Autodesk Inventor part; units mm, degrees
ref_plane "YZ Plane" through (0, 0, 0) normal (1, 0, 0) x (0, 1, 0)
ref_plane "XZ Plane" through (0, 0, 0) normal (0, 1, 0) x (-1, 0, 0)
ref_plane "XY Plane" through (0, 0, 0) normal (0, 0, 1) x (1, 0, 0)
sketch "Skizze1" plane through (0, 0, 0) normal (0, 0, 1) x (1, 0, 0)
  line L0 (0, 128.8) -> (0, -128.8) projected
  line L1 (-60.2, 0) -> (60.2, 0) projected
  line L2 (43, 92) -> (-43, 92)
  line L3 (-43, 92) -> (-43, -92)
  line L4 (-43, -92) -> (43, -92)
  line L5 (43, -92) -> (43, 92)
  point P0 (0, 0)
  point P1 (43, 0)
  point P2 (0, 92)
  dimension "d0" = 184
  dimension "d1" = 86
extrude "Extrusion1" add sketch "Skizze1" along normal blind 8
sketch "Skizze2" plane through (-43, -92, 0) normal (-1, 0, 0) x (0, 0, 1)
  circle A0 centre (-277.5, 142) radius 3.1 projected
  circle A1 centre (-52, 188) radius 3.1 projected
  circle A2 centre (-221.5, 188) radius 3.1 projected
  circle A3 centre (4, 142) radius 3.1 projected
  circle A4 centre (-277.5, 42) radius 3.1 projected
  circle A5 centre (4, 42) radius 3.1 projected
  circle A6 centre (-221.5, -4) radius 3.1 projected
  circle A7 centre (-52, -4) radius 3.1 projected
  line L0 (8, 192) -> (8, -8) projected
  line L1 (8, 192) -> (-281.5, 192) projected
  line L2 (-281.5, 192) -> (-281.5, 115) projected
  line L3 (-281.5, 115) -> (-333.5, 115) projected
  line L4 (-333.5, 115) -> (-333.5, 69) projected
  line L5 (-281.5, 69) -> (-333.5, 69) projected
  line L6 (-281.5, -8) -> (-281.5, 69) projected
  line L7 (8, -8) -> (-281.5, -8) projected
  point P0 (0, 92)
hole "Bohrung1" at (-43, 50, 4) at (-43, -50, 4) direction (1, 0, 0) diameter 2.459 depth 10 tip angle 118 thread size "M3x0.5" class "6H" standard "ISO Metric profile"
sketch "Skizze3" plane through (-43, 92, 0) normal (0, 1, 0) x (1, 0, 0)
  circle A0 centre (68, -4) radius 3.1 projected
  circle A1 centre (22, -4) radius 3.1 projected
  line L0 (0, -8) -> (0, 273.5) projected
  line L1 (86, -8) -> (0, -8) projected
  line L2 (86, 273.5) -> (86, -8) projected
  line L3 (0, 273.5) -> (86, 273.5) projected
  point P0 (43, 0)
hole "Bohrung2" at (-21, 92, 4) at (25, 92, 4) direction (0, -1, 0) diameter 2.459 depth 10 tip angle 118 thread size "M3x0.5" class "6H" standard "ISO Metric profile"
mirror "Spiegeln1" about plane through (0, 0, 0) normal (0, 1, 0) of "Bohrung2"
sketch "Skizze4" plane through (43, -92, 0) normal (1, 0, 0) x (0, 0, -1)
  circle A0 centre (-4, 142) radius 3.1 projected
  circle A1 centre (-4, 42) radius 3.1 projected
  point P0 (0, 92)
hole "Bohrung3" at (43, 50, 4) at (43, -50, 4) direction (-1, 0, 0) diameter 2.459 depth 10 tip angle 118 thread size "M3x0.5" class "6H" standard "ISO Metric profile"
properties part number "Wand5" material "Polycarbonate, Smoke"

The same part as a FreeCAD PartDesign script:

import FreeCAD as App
import Part
import Sketcher

doc = App.newDocument("Part")
params = doc.addObject("Spreadsheet::Sheet", "Params")
for row, (alias, value) in enumerate([
    ("sketch1_width", "86 mm"),
    ("sketch1_height", "184 mm"),
    ("pad1_length", "8 mm"),
    ("hole_diameter", "2.459 mm"),
    ("hole_depth", "10 mm"),
    ("hole2_diameter", "2.459 mm"),
    ("hole2_depth", "10 mm"),
    ("hole3_diameter", "2.459 mm"),
    ("hole3_depth", "10 mm"),
], start=1):
    params.set(f"A{row}", alias)
    params.set(f"B{row}", "=" + value)
    params.setAlias(f"B{row}", alias)

body = doc.addObject("PartDesign::Body", "Body")

sketch1 = body.newObject("Sketcher::SketchObject", "Sketch")
sketch1.AttachmentSupport = (doc.getObject("XY_Plane"), [""])
sketch1.MapMode = "FlatFace"
sketch1.addGeometry([
    Part.LineSegment(App.Vector(43, 92, 0), App.Vector(-43, 92, 0)),
    Part.LineSegment(App.Vector(-43, 92, 0), App.Vector(-43, -92, 0)),
    Part.LineSegment(App.Vector(-43, -92, 0), App.Vector(43, -92, 0)),
    Part.LineSegment(App.Vector(43, -92, 0), App.Vector(43, 92, 0)),
], False)
sketch1.addConstraint([
    Sketcher.Constraint("Coincident", 0, 2, 1, 1),
    Sketcher.Constraint("Coincident", 1, 2, 2, 1),
    Sketcher.Constraint("Coincident", 2, 2, 3, 1),
    Sketcher.Constraint("Coincident", 3, 2, 0, 1),
    Sketcher.Constraint("Horizontal", 0),
    Sketcher.Constraint("Vertical", 1),
    Sketcher.Constraint("Horizontal", 2),
    Sketcher.Constraint("Vertical", 3),
    Sketcher.Constraint("Symmetric", 0, 2, 2, 2, -1, 1),
    Sketcher.Constraint("DistanceX", 0, 2, 0, 1, 86.0),
    Sketcher.Constraint("DistanceY", 1, 2, 1, 1, 184.0),
])
sketch1.setExpression("Constraints[9]", "Params.sketch1_width")
sketch1.setExpression("Constraints[10]", "Params.sketch1_height")
pad1 = body.newObject("PartDesign::Pad", "Pad")
pad1.Profile = sketch1
pad1.setExpression("Length", "Params.pad1_length")

sketch2 = body.newObject("Sketcher::SketchObject", "Sketch001")
sketch2.AttachmentSupport = (doc.getObject("YZ_Plane"), [""])
sketch2.MapMode = "FlatFace"
sketch2.AttachmentOffset = App.Placement(App.Vector(0, 0, -43), App.Rotation())
sketch2.addGeometry([
    Part.Circle(App.Vector(50, 4, 0), App.Vector(0, 0, 1), 1.2),
    Part.Circle(App.Vector(-50, 4, 0), App.Vector(0, 0, 1), 1.2),
], False)
sketch2.addConstraint([
    Sketcher.Constraint("Equal", 0, 1),
    Sketcher.Constraint("Symmetric", 0, 3, 1, 3, -2),
    Sketcher.Constraint("Diameter", 0, 2.459),
    Sketcher.Constraint("DistanceX", -1, 1, 0, 3, 50.0),
    Sketcher.Constraint("DistanceY", -1, 1, 0, 3, 4.0),
])
doc.recompute()
hole = body.newObject("PartDesign::Hole", "Hole")
hole.Profile = sketch2
hole.ThreadType = "None"
hole.setExpression("Diameter", "Params.hole_diameter")
hole.DepthType = "Dimension"
hole.setExpression("Depth", "Params.hole_depth")
hole.DrillPoint = "Angled"
hole.DrillPointAngle = 118
hole.Reversed = True

sketch3 = body.newObject("Sketcher::SketchObject", "Sketch002")
sketch3.AttachmentSupport = (doc.getObject("XZ_Plane"), [""])
sketch3.MapMode = "FlatFace"
sketch3.AttachmentOffset = App.Placement(App.Vector(0, 0, -92), App.Rotation())
sketch3.addGeometry([
    Part.Circle(App.Vector(-21, 4, 0), App.Vector(0, 0, 1), 1.2),
    Part.Circle(App.Vector(25, 4, 0), App.Vector(0, 0, 1), 1.2),
], False)
sketch3.addConstraint([
    Sketcher.Constraint("Equal", 0, 1),
    Sketcher.Constraint("Horizontal", 0, 3, 1, 3),
    Sketcher.Constraint("Diameter", 0, 2.459),
    Sketcher.Constraint("DistanceX", 0, 3, -1, 1, 21.0),
    Sketcher.Constraint("DistanceY", -1, 1, 0, 3, 4.0),
    Sketcher.Constraint("DistanceX", -1, 1, 1, 3, 25.0),
])
doc.recompute()
hole2 = body.newObject("PartDesign::Hole", "Hole001")
hole2.Profile = sketch3
hole2.ThreadType = "None"
hole2.setExpression("Diameter", "Params.hole2_diameter")
hole2.DepthType = "Dimension"
hole2.setExpression("Depth", "Params.hole2_depth")
hole2.DrillPoint = "Angled"
hole2.DrillPointAngle = 118
hole2.Reversed = True
doc.recompute()

mirrored = body.newObject("PartDesign::Mirrored", "Mirrored")
mirrored.Originals = [hole2]
mirrored.MirrorPlane = (doc.getObject("XZ_Plane"), [""])
body.Tip = mirrored

sketch4 = body.newObject("Sketcher::SketchObject", "Sketch003")
sketch4.AttachmentSupport = (doc.getObject("YZ_Plane"), [""])
sketch4.MapMode = "FlatFace"
sketch4.AttachmentOffset = App.Placement(App.Vector(0, 0, 43), App.Rotation())
sketch4.addGeometry([
    Part.Circle(App.Vector(50, 4, 0), App.Vector(0, 0, 1), 1.2),
    Part.Circle(App.Vector(-50, 4, 0), App.Vector(0, 0, 1), 1.2),
], False)
sketch4.addConstraint([
    Sketcher.Constraint("Equal", 0, 1),
    Sketcher.Constraint("Symmetric", 0, 3, 1, 3, -2),
    Sketcher.Constraint("Diameter", 0, 2.459),
    Sketcher.Constraint("DistanceX", -1, 1, 0, 3, 50.0),
    Sketcher.Constraint("DistanceY", -1, 1, 0, 3, 4.0),
])
doc.recompute()
hole3 = body.newObject("PartDesign::Hole", "Hole002")
hole3.Profile = sketch4
hole3.ThreadType = "None"
hole3.setExpression("Diameter", "Params.hole3_diameter")
hole3.DepthType = "Dimension"
hole3.setExpression("Depth", "Params.hole3_depth")
hole3.DrillPoint = "Angled"
hole3.DrillPointAngle = 118

doc.recompute()
